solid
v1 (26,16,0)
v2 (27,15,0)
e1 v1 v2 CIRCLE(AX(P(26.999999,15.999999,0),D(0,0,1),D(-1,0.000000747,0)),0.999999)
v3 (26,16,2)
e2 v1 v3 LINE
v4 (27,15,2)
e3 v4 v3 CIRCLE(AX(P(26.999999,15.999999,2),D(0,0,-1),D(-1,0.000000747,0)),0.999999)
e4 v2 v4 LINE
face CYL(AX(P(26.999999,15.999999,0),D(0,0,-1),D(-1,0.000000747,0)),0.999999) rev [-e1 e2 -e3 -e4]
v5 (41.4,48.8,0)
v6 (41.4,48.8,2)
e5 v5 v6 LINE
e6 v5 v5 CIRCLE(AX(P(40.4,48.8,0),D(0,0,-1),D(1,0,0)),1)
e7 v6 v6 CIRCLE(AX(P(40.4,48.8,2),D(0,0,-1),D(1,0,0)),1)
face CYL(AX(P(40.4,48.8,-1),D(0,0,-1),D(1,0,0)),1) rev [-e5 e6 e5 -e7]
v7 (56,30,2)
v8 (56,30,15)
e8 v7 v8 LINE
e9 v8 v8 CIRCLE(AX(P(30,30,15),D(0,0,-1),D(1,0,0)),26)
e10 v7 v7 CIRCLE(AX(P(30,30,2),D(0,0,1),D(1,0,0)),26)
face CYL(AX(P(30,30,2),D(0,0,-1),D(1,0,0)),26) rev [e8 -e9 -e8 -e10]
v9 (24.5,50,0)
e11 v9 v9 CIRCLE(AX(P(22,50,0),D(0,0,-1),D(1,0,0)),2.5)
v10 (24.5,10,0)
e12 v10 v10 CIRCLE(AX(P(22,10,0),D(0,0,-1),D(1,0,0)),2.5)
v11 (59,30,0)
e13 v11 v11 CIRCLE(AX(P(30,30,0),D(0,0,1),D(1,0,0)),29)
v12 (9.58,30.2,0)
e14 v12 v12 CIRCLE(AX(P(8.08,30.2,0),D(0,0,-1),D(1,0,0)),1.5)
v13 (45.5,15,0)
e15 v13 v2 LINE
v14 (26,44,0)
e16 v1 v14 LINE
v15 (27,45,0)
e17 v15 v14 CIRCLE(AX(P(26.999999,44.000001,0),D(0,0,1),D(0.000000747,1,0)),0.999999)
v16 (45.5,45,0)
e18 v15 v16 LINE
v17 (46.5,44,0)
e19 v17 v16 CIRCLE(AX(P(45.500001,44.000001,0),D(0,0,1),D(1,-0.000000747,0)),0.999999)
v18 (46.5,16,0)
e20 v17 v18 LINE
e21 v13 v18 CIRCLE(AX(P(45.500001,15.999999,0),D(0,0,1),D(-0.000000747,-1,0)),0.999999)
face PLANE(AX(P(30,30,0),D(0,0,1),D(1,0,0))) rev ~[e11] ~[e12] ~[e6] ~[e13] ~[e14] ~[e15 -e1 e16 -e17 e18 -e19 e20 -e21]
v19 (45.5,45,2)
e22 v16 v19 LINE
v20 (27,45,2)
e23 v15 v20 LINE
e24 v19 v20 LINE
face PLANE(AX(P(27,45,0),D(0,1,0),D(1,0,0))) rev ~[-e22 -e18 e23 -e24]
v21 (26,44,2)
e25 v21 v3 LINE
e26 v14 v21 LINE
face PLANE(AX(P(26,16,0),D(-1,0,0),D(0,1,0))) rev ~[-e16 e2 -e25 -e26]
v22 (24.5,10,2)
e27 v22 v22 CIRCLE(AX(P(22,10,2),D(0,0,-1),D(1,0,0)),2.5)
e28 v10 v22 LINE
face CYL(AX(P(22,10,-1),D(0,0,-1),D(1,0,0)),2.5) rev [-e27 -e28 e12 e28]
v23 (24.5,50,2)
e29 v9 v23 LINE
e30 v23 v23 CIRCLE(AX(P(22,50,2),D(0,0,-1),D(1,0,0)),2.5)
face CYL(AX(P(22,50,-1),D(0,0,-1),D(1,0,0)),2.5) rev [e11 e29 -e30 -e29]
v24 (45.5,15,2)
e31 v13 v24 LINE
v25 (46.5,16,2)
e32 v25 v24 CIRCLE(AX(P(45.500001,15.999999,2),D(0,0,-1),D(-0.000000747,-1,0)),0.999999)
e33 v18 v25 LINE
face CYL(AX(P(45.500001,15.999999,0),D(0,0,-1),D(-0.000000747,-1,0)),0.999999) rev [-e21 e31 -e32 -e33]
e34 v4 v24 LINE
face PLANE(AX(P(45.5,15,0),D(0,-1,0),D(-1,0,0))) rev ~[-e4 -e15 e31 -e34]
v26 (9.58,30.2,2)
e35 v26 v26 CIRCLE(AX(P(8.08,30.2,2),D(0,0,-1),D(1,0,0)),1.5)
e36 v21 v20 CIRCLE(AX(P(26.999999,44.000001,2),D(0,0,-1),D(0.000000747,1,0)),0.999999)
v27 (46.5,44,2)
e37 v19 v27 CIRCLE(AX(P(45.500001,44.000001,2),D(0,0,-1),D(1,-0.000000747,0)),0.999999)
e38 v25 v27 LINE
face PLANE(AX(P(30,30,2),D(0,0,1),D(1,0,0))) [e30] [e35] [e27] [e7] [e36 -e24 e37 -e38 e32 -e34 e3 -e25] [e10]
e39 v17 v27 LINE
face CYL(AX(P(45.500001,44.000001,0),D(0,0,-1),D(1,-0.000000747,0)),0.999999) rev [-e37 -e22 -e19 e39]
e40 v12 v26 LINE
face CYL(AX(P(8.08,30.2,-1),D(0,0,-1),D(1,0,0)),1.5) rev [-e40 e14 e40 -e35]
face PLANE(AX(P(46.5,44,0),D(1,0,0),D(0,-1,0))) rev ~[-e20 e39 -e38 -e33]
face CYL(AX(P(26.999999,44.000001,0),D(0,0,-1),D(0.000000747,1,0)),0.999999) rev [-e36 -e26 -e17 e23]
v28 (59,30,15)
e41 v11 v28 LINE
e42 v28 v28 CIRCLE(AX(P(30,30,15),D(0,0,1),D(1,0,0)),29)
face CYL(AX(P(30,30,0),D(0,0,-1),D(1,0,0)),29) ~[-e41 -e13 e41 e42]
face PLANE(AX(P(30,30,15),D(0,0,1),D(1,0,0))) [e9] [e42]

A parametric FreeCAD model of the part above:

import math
import FreeCAD as App
import Part
import Sketcher

doc = App.newDocument("Part")
body = doc.addObject("PartDesign::Body", "Body")

# Sketch on XY plane
sketch1 = body.newObject("Sketcher::SketchObject", "Sketch")
sketch1.AttachmentSupport = (doc.getObject("XY_Plane"), [""])
sketch1.MapMode = "FlatFace"
sketch1.addGeometry([
    Part.LineSegment(App.Vector(45.5, 45, 0), App.Vector(27, 45, 0)),  # 0
    Part.ArcOfCircle(Part.Circle(App.Vector(27, 44, 0), App.Vector(0, 0, 1), 1), math.radians(90), math.radians(180)),  # 1
    Part.LineSegment(App.Vector(26, 44, 0), App.Vector(26, 16, 0)),  # 2
    Part.ArcOfCircle(Part.Circle(App.Vector(27, 16, 0), App.Vector(0, 0, 1), 1), math.radians(180), math.radians(270)),  # 3
    Part.LineSegment(App.Vector(27, 15, 0), App.Vector(45.5, 15, 0)),  # 4
    Part.ArcOfCircle(Part.Circle(App.Vector(45.5, 16, 0), App.Vector(0, 0, 1), 1), math.radians(-90), math.radians(0)),  # 5
    Part.LineSegment(App.Vector(46.5, 16, 0), App.Vector(46.5, 44, 0)),  # 6
    Part.ArcOfCircle(Part.Circle(App.Vector(45.5, 44, 0), App.Vector(0, 0, 1), 1), math.radians(0), math.radians(90)),  # 7
], False)
sketch1.addConstraint([
    Sketcher.Constraint("Tangent", 0, 2, 1, 1),
    Sketcher.Constraint("Tangent", 1, 2, 2, 1),
    Sketcher.Constraint("Tangent", 2, 2, 3, 1),
    Sketcher.Constraint("Tangent", 3, 2, 4, 1),
    Sketcher.Constraint("Tangent", 4, 2, 5, 1),
    Sketcher.Constraint("Tangent", 5, 2, 6, 1),
    Sketcher.Constraint("Tangent", 6, 2, 7, 1),
    Sketcher.Constraint("Tangent", 7, 2, 0, 1),
    Sketcher.Constraint("Horizontal", 0),
    Sketcher.Constraint("Vertical", 2),
    Sketcher.Constraint("Horizontal", 4),
    Sketcher.Constraint("Vertical", 6),
    Sketcher.Constraint("Equal", 1, 3),
    Sketcher.Constraint("Equal", 3, 5),
    Sketcher.Constraint("Equal", 5, 7),
    Sketcher.Constraint("Radius", 1, 0.999999),
    Sketcher.Constraint("DistanceY", 2, 2, 2, 1, 28.0),
    Sketcher.Constraint("DistanceX", 0, 2, 0, 1, 18.5),
    Sketcher.Constraint("DistanceX", -1, 1, 1, 3, 26.999999),
    Sketcher.Constraint("DistanceY", -1, 1, 1, 3, 44.000001),
])
pad1 = body.newObject("PartDesign::Pad", "Pad")
pad1.Profile = sketch1
pad1.Length = 10
body2 = doc.addObject("PartDesign::Body", "Body001")

# Sketch on XY plane
sketch2 = body2.newObject("Sketcher::SketchObject", "Sketch001")
sketch2.AttachmentSupport = (doc.getObject("XY_Plane001"), [""])
sketch2.MapMode = "FlatFace"
sketch2.AttachmentOffset = App.Placement(App.Vector(0, 0, -1), App.Rotation())
sketch2.addGeometry(Part.Circle(App.Vector(22, 50, 0), App.Vector(0, 0, 1), 2.5), False)
sketch2.addConstraint([
    Sketcher.Constraint("Diameter", 0, 5.0),
    Sketcher.Constraint("DistanceX", -1, 1, 0, 3, 22.0),
    Sketcher.Constraint("DistanceY", -1, 1, 0, 3, 50.0),
])
pad2 = body2.newObject("PartDesign::Pad", "Pad001")
pad2.Profile = sketch2
pad2.Length = 10
body3 = doc.addObject("PartDesign::Body", "Body002")

# Sketch on XY plane
sketch3 = body3.newObject("Sketcher::SketchObject", "Sketch002")
sketch3.AttachmentSupport = (doc.getObject("XY_Plane002"), [""])
sketch3.MapMode = "FlatFace"
sketch3.AttachmentOffset = App.Placement(App.Vector(0, 0, -1), App.Rotation())
sketch3.addGeometry(Part.Circle(App.Vector(8.1, 30.2, 0), App.Vector(0, 0, 1), 1.5), False)
sketch3.addConstraint([
    Sketcher.Constraint("Diameter", 0, 3.0),
    Sketcher.Constraint("DistanceY", -1, 1, 0, 3, 30.2),
    Sketcher.Constraint("DistanceX", -1, 1, 0, 3, 8.08),
])
pad3 = body3.newObject("PartDesign::Pad", "Pad002")
pad3.Profile = sketch3
pad3.Length = 10
body4 = doc.addObject("PartDesign::Body", "Body003")

# Sketch on XY plane
sketch4 = body4.newObject("Sketcher::SketchObject", "Sketch003")
sketch4.AttachmentSupport = (doc.getObject("XY_Plane003"), [""])
sketch4.MapMode = "FlatFace"
sketch4.AttachmentOffset = App.Placement(App.Vector(0, 0, -1), App.Rotation())
sketch4.addGeometry(Part.Circle(App.Vector(40.4, 48.8, 0), App.Vector(0, 0, 1), 1), False)
sketch4.addConstraint([
    Sketcher.Constraint("Diameter", 0, 2.0),
    Sketcher.Constraint("DistanceX", -1, 1, 0, 3, 40.4),
    Sketcher.Constraint("DistanceY", -1, 1, 0, 3, 48.8),
])
pad4 = body4.newObject("PartDesign::Pad", "Pad003")
pad4.Profile = sketch4
pad4.Length = 10
body5 = doc.addObject("PartDesign::Body", "Body004")
body5.AllowCompound = True

# Sketch on XY plane
sketch5 = body5.newObject("Sketcher::SketchObject", "Sketch004")
sketch5.AttachmentSupport = (doc.getObject("XY_Plane004"), [""])
sketch5.MapMode = "FlatFace"
sketch5.AttachmentOffset = App.Placement(App.Vector(0, 0, -1), App.Rotation())
sketch5.addGeometry(Part.Circle(App.Vector(22, 10, 0), App.Vector(0, 0, 1), 2.5), False)
sketch5.addConstraint([
    Sketcher.Constraint("Diameter", 0, 5.0),
    Sketcher.Constraint("DistanceX", -1, 1, 0, 3, 22.0),
    Sketcher.Constraint("DistanceY", -1, 1, 0, 3, 10.0),
])
pad5 = body5.newObject("PartDesign::Pad", "Pad004")
pad5.Profile = sketch5
pad5.Length = 10
doc.recompute()

boolean = body5.newObject("PartDesign::Boolean", "Boolean")
boolean.Type = "Fuse"
boolean.addObjects([body])
doc.recompute()

boolean2 = body5.newObject("PartDesign::Boolean", "Boolean001")
boolean2.Type = "Fuse"
boolean2.addObjects([body2])
doc.recompute()

boolean3 = body5.newObject("PartDesign::Boolean", "Boolean002")
boolean3.Type = "Fuse"
boolean3.addObjects([body3])
doc.recompute()

boolean4 = body5.newObject("PartDesign::Boolean", "Boolean003")
boolean4.Type = "Fuse"
boolean4.addObjects([body4])
body6 = doc.addObject("PartDesign::Body", "Body005")

# Sketch on XY plane
sketch6 = body6.newObject("Sketcher::SketchObject", "Sketch005")
sketch6.AttachmentSupport = (doc.getObject("XY_Plane005"), [""])
sketch6.MapMode = "FlatFace"
sketch6.AttachmentOffset = App.Placement(App.Vector(0, 0, 2), App.Rotation())
sketch6.addGeometry(Part.Circle(App.Vector(30, 30, 0), App.Vector(0, 0, 1), 26), False)
sketch6.addConstraint([
    Sketcher.Constraint("Diameter", 0, 52.0),
    Sketcher.Constraint("DistanceX", -1, 1, 0, 3, 30.0),
    Sketcher.Constraint("DistanceY", -1, 1, 0, 3, 30.0),
])
pad6 = body6.newObject("PartDesign::Pad", "Pad005")
pad6.Profile = sketch6
pad6.Length = 32
body7 = doc.addObject("PartDesign::Body", "Body006")

# Sketch on XY plane
sketch7 = body7.newObject("Sketcher::SketchObject", "Sketch006")
sketch7.AttachmentSupport = (doc.getObject("XY_Plane006"), [""])
sketch7.MapMode = "FlatFace"
sketch7.addGeometry(Part.Circle(App.Vector(30, 30, 0), App.Vector(0, 0, 1), 29), False)
sketch7.addConstraint([
    Sketcher.Constraint("Diameter", 0, 58.0),
    Sketcher.Constraint("DistanceX", -1, 1, 0, 3, 30.0),
    Sketcher.Constraint("DistanceY", -1, 1, 0, 3, 30.0),
])
pad7 = body7.newObject("PartDesign::Pad", "Pad006")
pad7.Profile = sketch7
pad7.Length = 15
doc.recompute()

boolean5 = body7.newObject("PartDesign::Boolean", "Boolean004")
boolean5.Type = "Cut"
boolean5.addObjects([body6])
doc.recompute()

boolean6 = body7.newObject("PartDesign::Boolean", "Boolean005")
boolean6.Type = "Cut"
boolean6.addObjects([body5])

doc.recompute()
